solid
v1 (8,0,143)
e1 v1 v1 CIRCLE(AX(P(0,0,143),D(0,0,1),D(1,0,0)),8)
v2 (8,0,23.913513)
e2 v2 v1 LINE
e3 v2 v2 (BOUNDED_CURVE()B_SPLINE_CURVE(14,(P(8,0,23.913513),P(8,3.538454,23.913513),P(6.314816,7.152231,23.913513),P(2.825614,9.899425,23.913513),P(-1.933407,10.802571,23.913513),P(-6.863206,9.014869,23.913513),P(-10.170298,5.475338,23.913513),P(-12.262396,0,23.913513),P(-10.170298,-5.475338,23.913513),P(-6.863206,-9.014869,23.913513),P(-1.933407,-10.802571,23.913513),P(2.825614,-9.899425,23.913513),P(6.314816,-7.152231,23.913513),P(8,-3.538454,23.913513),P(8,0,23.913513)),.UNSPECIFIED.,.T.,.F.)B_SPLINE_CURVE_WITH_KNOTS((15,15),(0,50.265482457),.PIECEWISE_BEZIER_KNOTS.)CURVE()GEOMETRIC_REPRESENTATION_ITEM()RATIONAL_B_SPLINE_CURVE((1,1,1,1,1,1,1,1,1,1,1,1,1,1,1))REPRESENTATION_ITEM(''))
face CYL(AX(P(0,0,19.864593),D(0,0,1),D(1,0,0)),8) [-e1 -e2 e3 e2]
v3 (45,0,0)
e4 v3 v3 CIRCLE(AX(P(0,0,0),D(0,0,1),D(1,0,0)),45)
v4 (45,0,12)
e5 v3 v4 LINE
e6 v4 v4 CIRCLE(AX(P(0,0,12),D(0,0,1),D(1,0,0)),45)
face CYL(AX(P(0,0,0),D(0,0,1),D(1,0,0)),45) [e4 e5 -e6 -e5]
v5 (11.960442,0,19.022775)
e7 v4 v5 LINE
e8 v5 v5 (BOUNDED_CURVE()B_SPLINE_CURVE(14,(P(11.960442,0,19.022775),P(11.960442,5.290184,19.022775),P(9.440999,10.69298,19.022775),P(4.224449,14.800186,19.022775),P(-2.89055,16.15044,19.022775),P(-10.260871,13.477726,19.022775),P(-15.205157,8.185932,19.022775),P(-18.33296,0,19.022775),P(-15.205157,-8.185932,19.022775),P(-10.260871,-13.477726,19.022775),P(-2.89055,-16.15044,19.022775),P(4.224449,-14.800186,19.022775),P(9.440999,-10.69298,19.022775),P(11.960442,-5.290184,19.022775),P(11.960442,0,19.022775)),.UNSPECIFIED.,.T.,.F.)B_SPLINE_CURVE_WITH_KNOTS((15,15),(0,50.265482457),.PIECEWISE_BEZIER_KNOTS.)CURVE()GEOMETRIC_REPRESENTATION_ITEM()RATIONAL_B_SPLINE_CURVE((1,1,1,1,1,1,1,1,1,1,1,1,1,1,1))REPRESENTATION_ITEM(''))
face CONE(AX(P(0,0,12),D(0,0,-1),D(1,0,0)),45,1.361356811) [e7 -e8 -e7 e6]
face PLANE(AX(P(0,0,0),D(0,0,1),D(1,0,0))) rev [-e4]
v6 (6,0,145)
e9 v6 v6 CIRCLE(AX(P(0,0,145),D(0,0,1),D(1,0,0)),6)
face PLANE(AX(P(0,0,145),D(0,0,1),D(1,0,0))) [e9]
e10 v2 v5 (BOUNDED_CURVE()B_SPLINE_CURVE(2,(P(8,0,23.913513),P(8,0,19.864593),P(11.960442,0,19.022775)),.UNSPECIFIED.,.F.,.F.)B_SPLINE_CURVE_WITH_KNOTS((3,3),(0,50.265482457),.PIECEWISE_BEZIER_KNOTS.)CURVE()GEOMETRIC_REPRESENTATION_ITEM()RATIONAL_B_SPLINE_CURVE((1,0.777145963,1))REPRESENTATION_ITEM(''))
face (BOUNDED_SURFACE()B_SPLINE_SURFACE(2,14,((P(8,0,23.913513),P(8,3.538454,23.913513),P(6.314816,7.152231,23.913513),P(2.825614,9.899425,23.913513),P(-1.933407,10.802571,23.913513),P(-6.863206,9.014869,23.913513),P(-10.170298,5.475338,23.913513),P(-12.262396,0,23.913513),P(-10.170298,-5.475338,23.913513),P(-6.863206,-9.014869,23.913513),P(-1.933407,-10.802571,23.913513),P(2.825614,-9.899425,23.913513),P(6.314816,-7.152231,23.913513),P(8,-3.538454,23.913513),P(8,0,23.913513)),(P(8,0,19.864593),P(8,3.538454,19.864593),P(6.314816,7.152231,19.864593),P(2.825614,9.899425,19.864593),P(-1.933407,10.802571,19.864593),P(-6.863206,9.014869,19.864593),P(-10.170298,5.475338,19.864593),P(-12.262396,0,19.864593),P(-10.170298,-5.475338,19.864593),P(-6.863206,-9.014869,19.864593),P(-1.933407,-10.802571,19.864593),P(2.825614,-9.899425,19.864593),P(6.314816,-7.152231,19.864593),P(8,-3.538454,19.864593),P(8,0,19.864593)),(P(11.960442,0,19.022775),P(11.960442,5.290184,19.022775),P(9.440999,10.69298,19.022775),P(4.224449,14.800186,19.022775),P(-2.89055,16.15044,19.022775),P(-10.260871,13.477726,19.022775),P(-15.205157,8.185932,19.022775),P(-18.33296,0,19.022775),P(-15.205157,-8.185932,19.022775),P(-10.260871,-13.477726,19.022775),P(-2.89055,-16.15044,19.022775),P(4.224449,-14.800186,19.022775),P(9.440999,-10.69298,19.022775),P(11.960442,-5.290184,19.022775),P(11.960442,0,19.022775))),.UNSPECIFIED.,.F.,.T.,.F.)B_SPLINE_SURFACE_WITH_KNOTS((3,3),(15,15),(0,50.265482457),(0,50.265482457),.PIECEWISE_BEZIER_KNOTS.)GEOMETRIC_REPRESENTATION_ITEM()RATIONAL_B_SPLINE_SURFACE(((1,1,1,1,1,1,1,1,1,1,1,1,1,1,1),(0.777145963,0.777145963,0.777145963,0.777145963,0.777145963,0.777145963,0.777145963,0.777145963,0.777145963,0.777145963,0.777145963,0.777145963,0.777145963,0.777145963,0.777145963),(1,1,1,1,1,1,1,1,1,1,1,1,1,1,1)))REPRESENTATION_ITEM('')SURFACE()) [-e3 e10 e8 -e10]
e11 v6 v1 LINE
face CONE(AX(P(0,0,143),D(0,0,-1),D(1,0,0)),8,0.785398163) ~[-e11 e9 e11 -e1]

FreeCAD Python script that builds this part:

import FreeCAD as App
import Part
import Sketcher
from FreeCAD import Vector
Q = App.Units.Quantity


def edges_at(feature, points):
    """Names of the edges that pass closest to the given points."""
    edges = feature.Shape.Edges
    near = lambda p: min(range(len(edges)), key=lambda i: edges[i].distToShape(Part.Vertex(*p))[0])
    return sorted({f"Edge{near(p) + 1}" for p in points})

doc = App.newDocument("Part")
body = doc.addObject("PartDesign::Body", "Body")

# Sketch on XZ plane
sketch1 = body.newObject("Sketcher::SketchObject", "Sketch")
sketch1.AttachmentSupport = (doc.getObject("XZ_Plane"), [""])
sketch1.MapMode = "FlatFace"
sketch1.addGeometry(Part.LineSegment(Vector(8, 145, 0), Vector(0, 145, 0)), False)
sketch1.addGeometry(Part.LineSegment(Vector(0, 145, 0), Vector(0, 0, 0)), False)
sketch1.addGeometry(Part.LineSegment(Vector(0, 0, 0), Vector(45, 0, 0)), False)
sketch1.addGeometry(Part.LineSegment(Vector(45, 0, 0), Vector(45, 12, 0)), False)
sketch1.addGeometry(Part.LineSegment(Vector(45, 12, 0), Vector(8, 20, 0)), False)
sketch1.addGeometry(Part.LineSegment(Vector(8, 20, 0), Vector(8, 145, 0)), False)
sketch1.addConstraint(Sketcher.Constraint("Coincident", 0, 2, 1, 1))
sketch1.addConstraint(Sketcher.Constraint("Coincident", 1, 2, 2, 1))
sketch1.addConstraint(Sketcher.Constraint("Coincident", 2, 2, 3, 1))
sketch1.addConstraint(Sketcher.Constraint("Coincident", 3, 2, 4, 1))
sketch1.addConstraint(Sketcher.Constraint("Coincident", 4, 2, 5, 1))
sketch1.addConstraint(Sketcher.Constraint("Coincident", 5, 2, 0, 1))
sketch1.addConstraint(Sketcher.Constraint("Horizontal", 0))
sketch1.addConstraint(Sketcher.Constraint("Vertical", 1))
sketch1.addConstraint(Sketcher.Constraint("Horizontal", 2))
sketch1.addConstraint(Sketcher.Constraint("Vertical", 3))
sketch1.addConstraint(Sketcher.Constraint("Vertical", 5))
sketch1.addConstraint(Sketcher.Constraint("Coincident", 1, 2, -1, 1))
sketch1.addConstraint(Sketcher.Constraint("DistanceX", 0, 2, 0, 1, 8.0))
sketch1.addConstraint(Sketcher.Constraint("DistanceX", 2, 1, 2, 2, 45.0))
sketch1.addConstraint(Sketcher.Constraint("DistanceY", 1, 2, 1, 1, 145.0))
sketch1.addConstraint(Sketcher.Constraint("DistanceY", 3, 1, 3, 2, 12.0))
sketch1.addConstraint(Sketcher.Constraint("Angle", 4, Q("168 deg")))
revolution = body.newObject("PartDesign::Revolution", "Revolution")
revolution.Profile = sketch1
revolution.ReferenceAxis = (sketch1, ["V_Axis"])
revolution.Angle = 360
doc.recompute()

chamfer = body.newObject("PartDesign::Chamfer", "Chamfer")
chamfer.Base = (revolution, edges_at(revolution, [(-8, 0, 145)]))
chamfer.Size = 2
doc.recompute()

fillet = body.newObject("PartDesign::Fillet", "Fillet")
fillet.Base = (chamfer, edges_at(chamfer, [(-8, 0, 19.865)]))
fillet.Radius = 5

doc.recompute()
